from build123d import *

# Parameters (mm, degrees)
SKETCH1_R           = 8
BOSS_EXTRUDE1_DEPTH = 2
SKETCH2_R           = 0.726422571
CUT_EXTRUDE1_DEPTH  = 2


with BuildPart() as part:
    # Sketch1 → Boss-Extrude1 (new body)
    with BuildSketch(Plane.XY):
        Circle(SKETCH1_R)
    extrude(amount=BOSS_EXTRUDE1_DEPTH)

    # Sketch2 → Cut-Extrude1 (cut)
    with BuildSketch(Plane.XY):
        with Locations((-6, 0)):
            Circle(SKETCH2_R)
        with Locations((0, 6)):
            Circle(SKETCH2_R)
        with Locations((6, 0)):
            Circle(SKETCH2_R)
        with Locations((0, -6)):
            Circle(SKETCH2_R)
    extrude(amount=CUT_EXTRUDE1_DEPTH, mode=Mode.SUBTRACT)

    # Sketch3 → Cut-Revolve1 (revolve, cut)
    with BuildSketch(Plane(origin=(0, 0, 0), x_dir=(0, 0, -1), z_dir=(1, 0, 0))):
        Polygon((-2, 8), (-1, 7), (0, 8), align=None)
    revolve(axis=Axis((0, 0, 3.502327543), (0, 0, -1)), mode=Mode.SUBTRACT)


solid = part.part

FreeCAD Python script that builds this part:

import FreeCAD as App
import Part
import Sketcher

doc = App.newDocument("Part")
params = doc.addObject("Spreadsheet::Sheet", "Params")
for row, (alias, value) in enumerate([
    ("sketch1_diameter", "16 mm"),
    ("pad1_length", "2 mm"),
    ("pocket1_length", "2 mm"),
    ("sketch3_height", "2 mm"),
    ("groove_angle", "360 deg"),
], start=1):
    params.set(f"A{row}", alias)
    params.set(f"B{row}", "=" + value)
    params.setAlias(f"B{row}", alias)

body = doc.addObject("PartDesign::Body", "Body")

sketch1 = body.newObject("Sketcher::SketchObject", "Sketch")
sketch1.AttachmentSupport = (doc.getObject("XY_Plane"), [""])
sketch1.MapMode = "FlatFace"
sketch1.addGeometry(Part.Circle(App.Vector(0, 0, 0), App.Vector(0, 0, 1), 8), False)
sketch1.addConstraint(Sketcher.Constraint("Coincident", 0, 3, -1, 1))
sketch1.addConstraint(Sketcher.Constraint("Diameter", 0, 16.0))
sketch1.setExpression("Constraints[1]", "Params.sketch1_diameter")
pad1 = body.newObject("PartDesign::Pad", "Pad")
pad1.Profile = sketch1
pad1.setExpression("Length", "Params.pad1_length")

sketch2 = body.newObject("Sketcher::SketchObject", "Sketch001")
sketch2.AttachmentSupport = (doc.getObject("XY_Plane"), [""])
sketch2.MapMode = "FlatFace"
sketch2.addGeometry(Part.Circle(App.Vector(-6, 0, 0), App.Vector(0, 0, 1), 0.726423), False)
sketch2.addGeometry(Part.Circle(App.Vector(0, 6, 0), App.Vector(0, 0, 1), 0.726423), False)
sketch2.addGeometry(Part.Circle(App.Vector(6, 0, 0), App.Vector(0, 0, 1), 0.726423), False)
sketch2.addGeometry(Part.Circle(App.Vector(0, -6, 0), App.Vector(0, 0, 1), 0.726423), False)
sketch2.addConstraint(Sketcher.Constraint("Equal", 0, 1))
sketch2.addConstraint(Sketcher.Constraint("Equal", 1, 2))
sketch2.addConstraint(Sketcher.Constraint("Equal", 2, 3))
sketch2.addConstraint(Sketcher.Constraint("Symmetric", 0, 3, 2, 3, -1, 1))
sketch2.addConstraint(Sketcher.Constraint("Symmetric", 1, 3, 3, 3, -1, 1))
sketch2.addConstraint(Sketcher.Constraint("PointOnObject", 0, 3, -1))
sketch2.addConstraint(Sketcher.Constraint("PointOnObject", 1, 3, -2))
sketch2.addConstraint(Sketcher.Constraint("DistanceX", 0, 3, -1, 1, 6.0))
sketch2.addConstraint(Sketcher.Constraint("DistanceY", -1, 1, 1, 3, 6.0))
sketch2.addConstraint(Sketcher.Constraint("Diameter", 0, 1.452845))
pocket1 = body.newObject("PartDesign::Pocket", "Pocket")
pocket1.Profile = sketch2
pocket1.setExpression("Length", "Params.pocket1_length")
pocket1.Reversed = True

sketch3 = body.newObject("Sketcher::SketchObject", "Sketch002")
sketch3.AttachmentSupport = (doc.getObject("YZ_Plane"), [""])
sketch3.MapMode = "FlatFace"
sketch3.addGeometry(Part.LineSegment(App.Vector(8, 2, 0), App.Vector(7, 1, 0)), False)
sketch3.addGeometry(Part.LineSegment(App.Vector(7, 1, 0), App.Vector(8, 0, 0)), False)
sketch3.addGeometry(Part.LineSegment(App.Vector(8, 0, 0), App.Vector(8, 2, 0)), False)
sketch3.addConstraint(Sketcher.Constraint("Coincident", 0, 2, 1, 1))
sketch3.addConstraint(Sketcher.Constraint("Coincident", 1, 2, 2, 1))
sketch3.addConstraint(Sketcher.Constraint("Coincident", 2, 2, 0, 1))
sketch3.addConstraint(Sketcher.Constraint("Vertical", 2))
sketch3.addConstraint(Sketcher.Constraint("PointOnObject", 1, 2, -1))
sketch3.addConstraint(Sketcher.Constraint("Perpendicular", 0, 1))
sketch3.addConstraint(Sketcher.Constraint("Equal", 0, 1))
sketch3.addConstraint(Sketcher.Constraint("DistanceY", 2, 1, 2, 2, 2.0))
sketch3.addConstraint(Sketcher.Constraint("DistanceX", -1, 1, 0, 2, 7.0))
sketch3.setExpression("Constraints[7]", "Params.sketch3_height")
groove = body.newObject("PartDesign::Groove", "Groove")
groove.Profile = sketch3
groove.ReferenceAxis = (sketch3, ["V_Axis"])
groove.setExpression("Angle", "Params.groove_angle")

doc.recompute()
